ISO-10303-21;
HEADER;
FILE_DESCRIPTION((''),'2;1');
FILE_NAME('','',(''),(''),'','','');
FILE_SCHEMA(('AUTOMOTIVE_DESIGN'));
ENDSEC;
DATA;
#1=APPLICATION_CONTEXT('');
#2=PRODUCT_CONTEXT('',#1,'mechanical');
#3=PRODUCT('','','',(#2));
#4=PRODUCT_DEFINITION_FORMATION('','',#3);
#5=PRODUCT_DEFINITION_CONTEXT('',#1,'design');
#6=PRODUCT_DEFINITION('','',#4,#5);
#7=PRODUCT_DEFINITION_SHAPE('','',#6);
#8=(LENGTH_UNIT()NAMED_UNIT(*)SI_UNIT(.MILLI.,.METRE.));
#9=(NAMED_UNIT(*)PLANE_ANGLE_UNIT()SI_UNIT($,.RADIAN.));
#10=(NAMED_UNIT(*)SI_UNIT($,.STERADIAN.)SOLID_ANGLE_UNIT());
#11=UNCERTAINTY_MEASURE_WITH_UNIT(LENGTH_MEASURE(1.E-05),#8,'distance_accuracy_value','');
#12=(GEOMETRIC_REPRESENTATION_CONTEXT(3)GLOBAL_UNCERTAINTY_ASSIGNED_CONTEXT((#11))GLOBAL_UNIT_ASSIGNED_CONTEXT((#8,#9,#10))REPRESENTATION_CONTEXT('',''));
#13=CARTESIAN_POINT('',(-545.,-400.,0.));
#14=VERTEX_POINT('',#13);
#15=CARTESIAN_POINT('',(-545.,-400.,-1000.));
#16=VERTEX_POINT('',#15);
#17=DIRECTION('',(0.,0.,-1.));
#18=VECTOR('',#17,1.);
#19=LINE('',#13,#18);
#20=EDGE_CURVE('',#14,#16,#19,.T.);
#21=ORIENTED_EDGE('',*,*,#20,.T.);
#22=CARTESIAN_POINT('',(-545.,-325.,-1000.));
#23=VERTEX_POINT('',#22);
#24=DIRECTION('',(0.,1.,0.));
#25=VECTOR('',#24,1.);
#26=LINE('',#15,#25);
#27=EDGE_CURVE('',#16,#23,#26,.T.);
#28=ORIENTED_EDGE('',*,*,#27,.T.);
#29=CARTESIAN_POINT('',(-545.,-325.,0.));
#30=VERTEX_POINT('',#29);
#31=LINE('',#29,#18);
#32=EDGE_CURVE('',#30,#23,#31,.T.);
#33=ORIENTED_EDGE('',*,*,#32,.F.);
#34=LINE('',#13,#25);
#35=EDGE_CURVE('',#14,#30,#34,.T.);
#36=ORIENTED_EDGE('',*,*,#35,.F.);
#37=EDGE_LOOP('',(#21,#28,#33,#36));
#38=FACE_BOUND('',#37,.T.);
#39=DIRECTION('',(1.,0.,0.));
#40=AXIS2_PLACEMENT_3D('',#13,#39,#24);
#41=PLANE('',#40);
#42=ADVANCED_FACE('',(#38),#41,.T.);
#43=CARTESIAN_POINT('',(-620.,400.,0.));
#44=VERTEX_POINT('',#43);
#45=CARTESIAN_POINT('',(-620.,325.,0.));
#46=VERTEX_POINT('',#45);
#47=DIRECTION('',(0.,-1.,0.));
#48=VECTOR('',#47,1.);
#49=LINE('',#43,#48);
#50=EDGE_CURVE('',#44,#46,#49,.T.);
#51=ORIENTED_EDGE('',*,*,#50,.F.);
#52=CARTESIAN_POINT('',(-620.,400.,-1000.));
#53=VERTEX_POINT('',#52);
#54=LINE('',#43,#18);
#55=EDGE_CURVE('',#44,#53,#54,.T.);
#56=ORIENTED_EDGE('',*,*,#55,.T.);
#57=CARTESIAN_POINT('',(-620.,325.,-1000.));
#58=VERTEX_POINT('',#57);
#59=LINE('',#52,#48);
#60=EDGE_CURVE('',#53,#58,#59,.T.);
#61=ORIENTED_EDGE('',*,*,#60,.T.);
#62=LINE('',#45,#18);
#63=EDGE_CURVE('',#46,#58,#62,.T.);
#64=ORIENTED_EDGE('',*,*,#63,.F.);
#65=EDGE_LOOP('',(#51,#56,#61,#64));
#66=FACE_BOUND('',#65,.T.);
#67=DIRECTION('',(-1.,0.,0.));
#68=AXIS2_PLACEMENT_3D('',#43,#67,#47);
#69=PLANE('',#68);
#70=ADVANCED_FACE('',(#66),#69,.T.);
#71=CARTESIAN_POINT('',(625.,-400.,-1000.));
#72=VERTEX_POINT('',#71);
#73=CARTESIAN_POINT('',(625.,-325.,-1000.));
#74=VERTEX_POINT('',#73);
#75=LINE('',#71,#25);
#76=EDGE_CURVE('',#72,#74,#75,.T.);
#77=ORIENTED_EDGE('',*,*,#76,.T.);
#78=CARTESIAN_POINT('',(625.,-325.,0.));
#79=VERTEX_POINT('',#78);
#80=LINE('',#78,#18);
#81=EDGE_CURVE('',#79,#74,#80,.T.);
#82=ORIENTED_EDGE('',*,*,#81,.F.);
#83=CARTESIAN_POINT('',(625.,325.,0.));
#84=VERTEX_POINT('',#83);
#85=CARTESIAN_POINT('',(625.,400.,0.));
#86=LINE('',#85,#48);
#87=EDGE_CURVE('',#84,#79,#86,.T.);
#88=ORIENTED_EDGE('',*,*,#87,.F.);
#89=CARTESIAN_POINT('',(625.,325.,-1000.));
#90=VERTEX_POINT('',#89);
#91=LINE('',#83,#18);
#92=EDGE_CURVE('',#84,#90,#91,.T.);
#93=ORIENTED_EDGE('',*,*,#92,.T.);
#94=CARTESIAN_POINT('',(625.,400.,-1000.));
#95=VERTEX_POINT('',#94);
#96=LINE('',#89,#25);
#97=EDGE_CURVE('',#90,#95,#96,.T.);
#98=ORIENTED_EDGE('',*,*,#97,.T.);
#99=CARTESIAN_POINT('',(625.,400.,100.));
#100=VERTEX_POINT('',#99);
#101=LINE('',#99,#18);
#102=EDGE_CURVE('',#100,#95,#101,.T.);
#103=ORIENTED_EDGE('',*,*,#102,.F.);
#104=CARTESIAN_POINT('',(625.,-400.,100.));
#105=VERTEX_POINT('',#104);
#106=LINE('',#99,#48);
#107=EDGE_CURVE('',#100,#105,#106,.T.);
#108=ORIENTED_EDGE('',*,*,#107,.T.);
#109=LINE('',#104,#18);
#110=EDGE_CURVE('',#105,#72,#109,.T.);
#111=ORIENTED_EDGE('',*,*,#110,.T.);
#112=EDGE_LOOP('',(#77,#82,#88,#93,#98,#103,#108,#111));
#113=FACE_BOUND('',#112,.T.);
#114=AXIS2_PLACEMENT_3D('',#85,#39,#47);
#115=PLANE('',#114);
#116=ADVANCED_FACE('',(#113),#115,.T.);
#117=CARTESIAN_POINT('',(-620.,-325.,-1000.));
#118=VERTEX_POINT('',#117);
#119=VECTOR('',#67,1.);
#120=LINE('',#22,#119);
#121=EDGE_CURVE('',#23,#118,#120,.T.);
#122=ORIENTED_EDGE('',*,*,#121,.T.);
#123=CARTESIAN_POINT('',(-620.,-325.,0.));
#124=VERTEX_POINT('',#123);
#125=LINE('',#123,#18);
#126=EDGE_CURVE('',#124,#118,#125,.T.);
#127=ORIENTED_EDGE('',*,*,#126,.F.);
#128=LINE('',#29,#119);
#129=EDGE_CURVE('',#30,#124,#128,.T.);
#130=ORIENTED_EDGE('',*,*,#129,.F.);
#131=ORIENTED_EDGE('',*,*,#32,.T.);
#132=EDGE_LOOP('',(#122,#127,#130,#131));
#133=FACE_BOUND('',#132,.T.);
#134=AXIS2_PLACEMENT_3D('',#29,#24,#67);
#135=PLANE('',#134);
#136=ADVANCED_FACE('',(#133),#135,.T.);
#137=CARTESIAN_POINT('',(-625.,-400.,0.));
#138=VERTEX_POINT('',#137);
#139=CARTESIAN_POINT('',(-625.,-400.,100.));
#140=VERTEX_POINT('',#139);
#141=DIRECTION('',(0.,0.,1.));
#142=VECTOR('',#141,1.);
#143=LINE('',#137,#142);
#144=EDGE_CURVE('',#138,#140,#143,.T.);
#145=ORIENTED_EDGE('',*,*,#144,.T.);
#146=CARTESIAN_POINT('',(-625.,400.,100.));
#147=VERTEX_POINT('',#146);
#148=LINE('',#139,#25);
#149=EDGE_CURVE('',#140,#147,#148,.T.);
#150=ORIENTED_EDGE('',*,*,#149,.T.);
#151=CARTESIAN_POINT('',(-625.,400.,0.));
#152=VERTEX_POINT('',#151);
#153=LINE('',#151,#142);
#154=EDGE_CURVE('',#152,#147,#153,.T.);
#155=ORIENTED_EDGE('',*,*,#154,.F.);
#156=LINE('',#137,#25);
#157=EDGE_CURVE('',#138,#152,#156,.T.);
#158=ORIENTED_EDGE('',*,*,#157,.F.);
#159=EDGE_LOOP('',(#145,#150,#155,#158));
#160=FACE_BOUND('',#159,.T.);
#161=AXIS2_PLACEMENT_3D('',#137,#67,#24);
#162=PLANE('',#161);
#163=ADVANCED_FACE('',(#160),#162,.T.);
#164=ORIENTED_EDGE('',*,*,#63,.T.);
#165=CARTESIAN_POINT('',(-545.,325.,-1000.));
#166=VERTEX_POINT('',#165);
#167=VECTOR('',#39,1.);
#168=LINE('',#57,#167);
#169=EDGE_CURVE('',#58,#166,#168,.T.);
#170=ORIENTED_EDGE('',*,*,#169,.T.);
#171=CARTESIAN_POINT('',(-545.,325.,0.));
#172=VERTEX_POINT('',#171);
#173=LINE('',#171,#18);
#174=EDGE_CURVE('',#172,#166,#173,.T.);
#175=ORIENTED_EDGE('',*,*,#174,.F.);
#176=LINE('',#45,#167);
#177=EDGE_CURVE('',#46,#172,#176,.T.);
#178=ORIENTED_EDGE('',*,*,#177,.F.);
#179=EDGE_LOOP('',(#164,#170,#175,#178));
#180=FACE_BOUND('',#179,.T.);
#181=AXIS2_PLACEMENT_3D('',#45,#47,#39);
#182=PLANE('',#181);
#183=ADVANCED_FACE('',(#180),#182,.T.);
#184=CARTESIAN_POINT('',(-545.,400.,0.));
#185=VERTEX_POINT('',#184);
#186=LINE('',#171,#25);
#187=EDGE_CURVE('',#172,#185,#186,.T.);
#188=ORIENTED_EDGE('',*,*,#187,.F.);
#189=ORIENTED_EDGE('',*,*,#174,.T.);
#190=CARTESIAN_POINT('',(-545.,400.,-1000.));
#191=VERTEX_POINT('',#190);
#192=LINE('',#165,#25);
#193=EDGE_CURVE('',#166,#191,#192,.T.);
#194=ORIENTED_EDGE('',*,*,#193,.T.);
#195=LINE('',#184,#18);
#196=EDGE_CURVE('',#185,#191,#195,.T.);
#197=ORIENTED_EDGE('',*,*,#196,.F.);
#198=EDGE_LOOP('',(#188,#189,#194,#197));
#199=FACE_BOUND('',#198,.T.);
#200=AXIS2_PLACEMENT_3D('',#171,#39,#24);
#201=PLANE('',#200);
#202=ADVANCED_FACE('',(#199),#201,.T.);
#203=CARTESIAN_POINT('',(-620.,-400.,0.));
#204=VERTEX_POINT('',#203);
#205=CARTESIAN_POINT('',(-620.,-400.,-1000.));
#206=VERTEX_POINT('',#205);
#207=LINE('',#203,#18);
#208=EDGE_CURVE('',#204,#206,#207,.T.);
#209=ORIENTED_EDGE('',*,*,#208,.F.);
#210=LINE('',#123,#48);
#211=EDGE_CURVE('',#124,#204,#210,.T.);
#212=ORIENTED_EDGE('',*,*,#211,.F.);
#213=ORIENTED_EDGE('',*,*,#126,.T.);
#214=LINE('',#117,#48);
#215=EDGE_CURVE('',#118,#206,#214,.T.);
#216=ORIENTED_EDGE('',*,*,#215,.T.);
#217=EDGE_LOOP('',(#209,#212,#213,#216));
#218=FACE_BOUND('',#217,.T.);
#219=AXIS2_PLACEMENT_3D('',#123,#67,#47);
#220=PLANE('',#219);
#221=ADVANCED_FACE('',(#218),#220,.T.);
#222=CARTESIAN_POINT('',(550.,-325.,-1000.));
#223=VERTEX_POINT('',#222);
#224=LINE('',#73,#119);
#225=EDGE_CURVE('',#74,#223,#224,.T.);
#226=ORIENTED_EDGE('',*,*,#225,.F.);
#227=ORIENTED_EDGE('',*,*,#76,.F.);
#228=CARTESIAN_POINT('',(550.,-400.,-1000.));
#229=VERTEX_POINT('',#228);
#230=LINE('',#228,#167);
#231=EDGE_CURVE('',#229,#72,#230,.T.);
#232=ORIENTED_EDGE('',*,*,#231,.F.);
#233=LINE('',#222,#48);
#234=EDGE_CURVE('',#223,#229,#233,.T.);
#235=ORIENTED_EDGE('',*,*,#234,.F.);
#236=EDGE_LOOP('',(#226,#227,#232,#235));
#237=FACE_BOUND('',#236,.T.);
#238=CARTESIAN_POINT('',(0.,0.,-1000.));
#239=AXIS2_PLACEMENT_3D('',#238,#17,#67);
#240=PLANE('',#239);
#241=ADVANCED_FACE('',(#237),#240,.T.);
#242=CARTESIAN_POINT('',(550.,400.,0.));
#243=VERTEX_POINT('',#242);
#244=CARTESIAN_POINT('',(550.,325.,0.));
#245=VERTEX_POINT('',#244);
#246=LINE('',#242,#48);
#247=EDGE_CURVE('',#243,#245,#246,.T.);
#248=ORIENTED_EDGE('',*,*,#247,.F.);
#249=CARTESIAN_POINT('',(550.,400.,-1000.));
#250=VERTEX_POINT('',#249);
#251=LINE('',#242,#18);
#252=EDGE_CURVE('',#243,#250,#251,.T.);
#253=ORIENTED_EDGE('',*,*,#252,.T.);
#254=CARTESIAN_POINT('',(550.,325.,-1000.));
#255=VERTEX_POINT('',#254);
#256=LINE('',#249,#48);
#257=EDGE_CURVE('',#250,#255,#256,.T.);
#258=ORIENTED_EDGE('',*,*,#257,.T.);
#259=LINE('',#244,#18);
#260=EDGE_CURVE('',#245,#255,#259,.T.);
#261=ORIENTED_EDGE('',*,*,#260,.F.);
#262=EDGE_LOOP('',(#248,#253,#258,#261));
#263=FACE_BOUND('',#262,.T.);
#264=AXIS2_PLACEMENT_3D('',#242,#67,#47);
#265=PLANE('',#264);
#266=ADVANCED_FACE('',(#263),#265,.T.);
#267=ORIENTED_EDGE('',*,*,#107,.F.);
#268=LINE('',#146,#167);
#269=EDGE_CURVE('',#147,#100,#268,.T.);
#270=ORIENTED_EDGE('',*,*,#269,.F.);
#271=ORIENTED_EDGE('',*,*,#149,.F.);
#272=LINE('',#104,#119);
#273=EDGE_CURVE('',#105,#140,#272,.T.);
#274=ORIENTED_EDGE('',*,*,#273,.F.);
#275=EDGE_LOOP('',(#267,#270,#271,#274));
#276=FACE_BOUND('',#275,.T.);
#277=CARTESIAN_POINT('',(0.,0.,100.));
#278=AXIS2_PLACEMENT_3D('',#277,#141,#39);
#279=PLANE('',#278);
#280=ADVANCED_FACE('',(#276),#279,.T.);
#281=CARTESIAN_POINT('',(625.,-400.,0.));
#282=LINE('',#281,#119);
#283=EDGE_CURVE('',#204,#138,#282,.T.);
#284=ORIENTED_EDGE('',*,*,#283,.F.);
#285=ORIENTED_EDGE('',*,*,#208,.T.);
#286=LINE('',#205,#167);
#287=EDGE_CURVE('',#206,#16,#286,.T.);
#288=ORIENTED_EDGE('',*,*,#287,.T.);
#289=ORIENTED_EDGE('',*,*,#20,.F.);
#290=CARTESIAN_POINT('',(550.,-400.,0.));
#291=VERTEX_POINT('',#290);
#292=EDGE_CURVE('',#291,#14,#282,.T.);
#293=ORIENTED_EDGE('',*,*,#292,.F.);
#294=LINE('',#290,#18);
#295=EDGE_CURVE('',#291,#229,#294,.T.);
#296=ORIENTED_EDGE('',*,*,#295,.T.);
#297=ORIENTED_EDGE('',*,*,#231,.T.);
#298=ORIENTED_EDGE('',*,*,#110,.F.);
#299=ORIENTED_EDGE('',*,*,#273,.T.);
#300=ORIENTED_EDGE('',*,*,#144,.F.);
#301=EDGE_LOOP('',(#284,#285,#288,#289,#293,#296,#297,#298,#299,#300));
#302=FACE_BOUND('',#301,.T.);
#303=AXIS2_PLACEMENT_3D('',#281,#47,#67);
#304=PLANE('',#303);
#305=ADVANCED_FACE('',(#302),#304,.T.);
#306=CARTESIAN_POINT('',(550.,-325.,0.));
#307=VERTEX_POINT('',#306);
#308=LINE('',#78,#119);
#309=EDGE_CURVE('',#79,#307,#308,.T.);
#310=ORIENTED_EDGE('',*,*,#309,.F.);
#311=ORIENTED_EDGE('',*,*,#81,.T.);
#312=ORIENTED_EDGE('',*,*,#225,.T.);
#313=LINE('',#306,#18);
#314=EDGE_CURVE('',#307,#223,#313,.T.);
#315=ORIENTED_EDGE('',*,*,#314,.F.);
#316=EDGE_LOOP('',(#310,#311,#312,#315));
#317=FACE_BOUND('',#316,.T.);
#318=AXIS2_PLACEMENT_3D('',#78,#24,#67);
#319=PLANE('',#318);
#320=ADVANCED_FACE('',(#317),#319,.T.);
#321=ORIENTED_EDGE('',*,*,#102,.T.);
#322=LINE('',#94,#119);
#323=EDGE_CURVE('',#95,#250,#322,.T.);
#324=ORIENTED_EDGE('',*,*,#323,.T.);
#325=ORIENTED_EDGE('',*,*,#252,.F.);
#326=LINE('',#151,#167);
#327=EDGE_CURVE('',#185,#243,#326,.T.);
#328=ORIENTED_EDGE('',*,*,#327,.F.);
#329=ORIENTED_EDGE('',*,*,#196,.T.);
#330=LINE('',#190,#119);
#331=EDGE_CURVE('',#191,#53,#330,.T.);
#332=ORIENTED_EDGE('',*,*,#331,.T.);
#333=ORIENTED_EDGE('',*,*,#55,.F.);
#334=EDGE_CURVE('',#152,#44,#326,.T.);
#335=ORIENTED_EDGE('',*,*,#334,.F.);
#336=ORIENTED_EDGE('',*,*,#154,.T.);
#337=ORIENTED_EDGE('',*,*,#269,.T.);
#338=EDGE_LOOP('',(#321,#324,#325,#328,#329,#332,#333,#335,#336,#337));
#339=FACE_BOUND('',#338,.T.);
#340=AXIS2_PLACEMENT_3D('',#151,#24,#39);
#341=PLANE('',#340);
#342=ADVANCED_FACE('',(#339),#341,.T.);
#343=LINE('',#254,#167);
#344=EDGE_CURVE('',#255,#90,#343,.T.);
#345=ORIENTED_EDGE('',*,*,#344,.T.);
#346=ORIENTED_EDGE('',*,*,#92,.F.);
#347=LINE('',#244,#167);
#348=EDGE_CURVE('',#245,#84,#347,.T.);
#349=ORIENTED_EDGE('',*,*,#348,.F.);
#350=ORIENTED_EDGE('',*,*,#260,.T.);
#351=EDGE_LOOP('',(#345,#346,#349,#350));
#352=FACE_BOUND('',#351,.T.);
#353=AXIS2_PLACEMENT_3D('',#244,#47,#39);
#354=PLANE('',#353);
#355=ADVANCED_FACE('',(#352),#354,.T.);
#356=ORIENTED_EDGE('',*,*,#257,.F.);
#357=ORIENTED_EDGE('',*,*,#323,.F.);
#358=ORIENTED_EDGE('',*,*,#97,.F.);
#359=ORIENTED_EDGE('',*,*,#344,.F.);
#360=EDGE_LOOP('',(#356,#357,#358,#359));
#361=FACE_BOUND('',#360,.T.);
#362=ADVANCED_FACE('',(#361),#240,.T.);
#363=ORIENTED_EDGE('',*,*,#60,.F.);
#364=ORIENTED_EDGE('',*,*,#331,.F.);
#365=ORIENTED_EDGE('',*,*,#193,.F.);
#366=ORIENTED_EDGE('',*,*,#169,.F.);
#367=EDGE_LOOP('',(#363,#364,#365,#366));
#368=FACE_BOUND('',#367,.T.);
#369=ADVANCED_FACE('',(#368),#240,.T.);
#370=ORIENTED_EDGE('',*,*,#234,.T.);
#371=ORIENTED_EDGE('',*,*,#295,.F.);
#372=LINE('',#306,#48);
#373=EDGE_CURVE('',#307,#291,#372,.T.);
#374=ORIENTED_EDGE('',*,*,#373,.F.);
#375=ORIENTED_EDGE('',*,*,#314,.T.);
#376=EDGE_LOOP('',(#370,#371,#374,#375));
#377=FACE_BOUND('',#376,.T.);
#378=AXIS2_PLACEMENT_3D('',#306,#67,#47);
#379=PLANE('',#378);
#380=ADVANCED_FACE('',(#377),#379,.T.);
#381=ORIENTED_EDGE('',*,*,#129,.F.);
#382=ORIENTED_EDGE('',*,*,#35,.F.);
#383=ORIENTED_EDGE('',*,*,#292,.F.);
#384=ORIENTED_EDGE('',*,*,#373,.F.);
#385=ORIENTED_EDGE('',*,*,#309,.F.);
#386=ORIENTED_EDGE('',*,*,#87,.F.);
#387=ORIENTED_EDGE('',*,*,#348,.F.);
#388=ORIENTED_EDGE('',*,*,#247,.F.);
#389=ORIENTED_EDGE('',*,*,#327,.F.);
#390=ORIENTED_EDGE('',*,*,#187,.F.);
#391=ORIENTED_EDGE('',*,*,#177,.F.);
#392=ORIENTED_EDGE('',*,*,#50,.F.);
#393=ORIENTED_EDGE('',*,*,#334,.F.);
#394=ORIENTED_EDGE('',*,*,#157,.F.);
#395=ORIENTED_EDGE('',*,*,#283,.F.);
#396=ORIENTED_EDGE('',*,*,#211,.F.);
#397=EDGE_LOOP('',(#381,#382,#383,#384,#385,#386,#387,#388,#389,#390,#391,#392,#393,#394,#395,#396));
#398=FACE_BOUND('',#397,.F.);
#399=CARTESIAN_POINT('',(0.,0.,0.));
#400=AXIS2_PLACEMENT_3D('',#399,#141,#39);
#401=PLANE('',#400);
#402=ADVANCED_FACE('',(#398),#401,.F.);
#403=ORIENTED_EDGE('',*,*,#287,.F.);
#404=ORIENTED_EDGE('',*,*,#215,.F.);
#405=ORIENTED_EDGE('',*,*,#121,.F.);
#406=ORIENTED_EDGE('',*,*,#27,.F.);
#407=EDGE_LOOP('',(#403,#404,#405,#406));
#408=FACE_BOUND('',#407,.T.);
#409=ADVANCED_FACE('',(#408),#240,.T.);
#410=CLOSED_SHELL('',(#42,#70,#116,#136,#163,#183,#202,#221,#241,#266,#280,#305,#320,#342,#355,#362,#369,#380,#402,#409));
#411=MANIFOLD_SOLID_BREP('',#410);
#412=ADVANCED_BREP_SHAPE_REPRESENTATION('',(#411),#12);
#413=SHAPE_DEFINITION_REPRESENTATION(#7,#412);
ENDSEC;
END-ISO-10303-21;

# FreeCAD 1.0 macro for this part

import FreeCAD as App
import Part
import Sketcher
from FreeCAD import Vector
Q = App.Units.Quantity

doc = App.newDocument("Part")
params = doc.addObject("Spreadsheet::Sheet", "Params")
for row, (alias, value) in enumerate([
    ("sketch1_width", "1250 mm"),
    ("sketch1_height", "800 mm"),
    ("pad1_length", "100 mm"),
    ("sketch2_width", "75 mm"),
    ("pad2_length", "1000 mm"),
], start=1):
    params.set(f"A{row}", alias)
    params.set(f"B{row}", "=" + value)
    params.setAlias(f"B{row}", alias)

body = doc.addObject("PartDesign::Body", "Body")

# Sketch on XY plane
sketch1 = body.newObject("Sketcher::SketchObject", "Sketch")
sketch1.AttachmentSupport = (doc.getObject("XY_Plane"), [""])
sketch1.MapMode = "FlatFace"
sketch1.addGeometry(Part.LineSegment(Vector(625, 400, 0), Vector(-625, 400, 0)), False)
sketch1.addGeometry(Part.LineSegment(Vector(-625, 400, 0), Vector(-625, -400, 0)), False)
sketch1.addGeometry(Part.LineSegment(Vector(-625, -400, 0), Vector(625, -400, 0)), False)
sketch1.addGeometry(Part.LineSegment(Vector(625, -400, 0), Vector(625, 400, 0)), False)
sketch1.addConstraint(Sketcher.Constraint("Coincident", 0, 2, 1, 1))
sketch1.addConstraint(Sketcher.Constraint("Coincident", 1, 2, 2, 1))
sketch1.addConstraint(Sketcher.Constraint("Coincident", 2, 2, 3, 1))
sketch1.addConstraint(Sketcher.Constraint("Coincident", 3, 2, 0, 1))
sketch1.addConstraint(Sketcher.Constraint("Horizontal", 0))
sketch1.addConstraint(Sketcher.Constraint("Vertical", 1))
sketch1.addConstraint(Sketcher.Constraint("Horizontal", 2))
sketch1.addConstraint(Sketcher.Constraint("Vertical", 3))
sketch1.addConstraint(Sketcher.Constraint("Symmetric", 0, 2, 2, 2, -1, 1))
sketch1.addConstraint(Sketcher.Constraint("DistanceX", 0, 2, 0, 1, Q("1250 mm")))
sketch1.addConstraint(Sketcher.Constraint("DistanceY", 1, 2, 1, 1, Q("800 mm")))
sketch1.setExpression("Constraints[9]", "Params.sketch1_width")
sketch1.setExpression("Constraints[10]", "Params.sketch1_height")
pad1 = body.newObject("PartDesign::Pad", "Pad")
pad1.Profile = sketch1
pad1.setExpression("Length", "Params.pad1_length")

# Sketch on XY plane
sketch2 = body.newObject("Sketcher::SketchObject", "Sketch001")
sketch2.AttachmentSupport = (doc.getObject("XY_Plane"), [""])
sketch2.MapMode = "FlatFace"
sketch2.addGeometry(Part.LineSegment(Vector(550, 400, 0), Vector(625, 400, 0)), False)
sketch2.addGeometry(Part.LineSegment(Vector(625, 400, 0), Vector(625, 325, 0)), False)
sketch2.addGeometry(Part.LineSegment(Vector(625, 325, 0), Vector(550, 325, 0)), False)
sketch2.addGeometry(Part.LineSegment(Vector(550, 325, 0), Vector(550, 400, 0)), False)
sketch2.addGeometry(Part.LineSegment(Vector(-620, 400, 0), Vector(-545, 400, 0)), False)
sketch2.addGeometry(Part.LineSegment(Vector(-545, 400, 0), Vector(-545, 325, 0)), False)
sketch2.addGeometry(Part.LineSegment(Vector(-545, 325, 0), Vector(-620, 325, 0)), False)
sketch2.addGeometry(Part.LineSegment(Vector(-620, 325, 0), Vector(-620, 400, 0)), False)
sketch2.addGeometry(Part.LineSegment(Vector(550, -325, 0), Vector(625, -325, 0)), False)
sketch2.addGeometry(Part.LineSegment(Vector(625, -325, 0), Vector(625, -400, 0)), False)
sketch2.addGeometry(Part.LineSegment(Vector(625, -400, 0), Vector(550, -400, 0)), False)
sketch2.addGeometry(Part.LineSegment(Vector(550, -400, 0), Vector(550, -325, 0)), False)
sketch2.addGeometry(Part.LineSegment(Vector(-620, -325, 0), Vector(-545, -325, 0)), False)
sketch2.addGeometry(Part.LineSegment(Vector(-545, -325, 0), Vector(-545, -400, 0)), False)
sketch2.addGeometry(Part.LineSegment(Vector(-545, -400, 0), Vector(-620, -400, 0)), False)
sketch2.addGeometry(Part.LineSegment(Vector(-620, -400, 0), Vector(-620, -325, 0)), False)
sketch2.addConstraint(Sketcher.Constraint("Coincident", 0, 2, 1, 1))
sketch2.addConstraint(Sketcher.Constraint("Coincident", 1, 2, 2, 1))
sketch2.addConstraint(Sketcher.Constraint("Coincident", 2, 2, 3, 1))
sketch2.addConstraint(Sketcher.Constraint("Coincident", 3, 2, 0, 1))
sketch2.addConstraint(Sketcher.Constraint("Coincident", 4, 2, 5, 1))
sketch2.addConstraint(Sketcher.Constraint("Coincident", 5, 2, 6, 1))
sketch2.addConstraint(Sketcher.Constraint("Coincident", 6, 2, 7, 1))
sketch2.addConstraint(Sketcher.Constraint("Coincident", 7, 2, 4, 1))
sketch2.addConstraint(Sketcher.Constraint("Coincident", 8, 2, 9, 1))
sketch2.addConstraint(Sketcher.Constraint("Coincident", 9, 2, 10, 1))
sketch2.addConstraint(Sketcher.Constraint("Coincident", 10, 2, 11, 1))
sketch2.addConstraint(Sketcher.Constraint("Coincident", 11, 2, 8, 1))
sketch2.addConstraint(Sketcher.Constraint("Coincident", 12, 2, 13, 1))
sketch2.addConstraint(Sketcher.Constraint("Coincident", 13, 2, 14, 1))
sketch2.addConstraint(Sketcher.Constraint("Coincident", 14, 2, 15, 1))
sketch2.addConstraint(Sketcher.Constraint("Coincident", 15, 2, 12, 1))
sketch2.addConstraint(Sketcher.Constraint("Horizontal", 0))
sketch2.addConstraint(Sketcher.Constraint("Vertical", 1))
sketch2.addConstraint(Sketcher.Constraint("Horizontal", 2))
sketch2.addConstraint(Sketcher.Constraint("Vertical", 3))
sketch2.addConstraint(Sketcher.Constraint("Horizontal", 4))
sketch2.addConstraint(Sketcher.Constraint("Vertical", 5))
sketch2.addConstraint(Sketcher.Constraint("Horizontal", 6))
sketch2.addConstraint(Sketcher.Constraint("Vertical", 7))
sketch2.addConstraint(Sketcher.Constraint("Horizontal", 8))
sketch2.addConstraint(Sketcher.Constraint("Vertical", 9))
sketch2.addConstraint(Sketcher.Constraint("Horizontal", 10))
sketch2.addConstraint(Sketcher.Constraint("Vertical", 11))
sketch2.addConstraint(Sketcher.Constraint("Horizontal", 12))
sketch2.addConstraint(Sketcher.Constraint("Vertical", 13))
sketch2.addConstraint(Sketcher.Constraint("Horizontal", 14))
sketch2.addConstraint(Sketcher.Constraint("Vertical", 15))
sketch2.addConstraint(Sketcher.Constraint("Symmetric", 1, 2, 8, 2, -1))
sketch2.addConstraint(Sketcher.Constraint("Symmetric", 3, 2, 10, 2, -1))
sketch2.addConstraint(Sketcher.Constraint("Symmetric", 5, 2, 12, 2, -1))
sketch2.addConstraint(Sketcher.Constraint("Symmetric", 7, 2, 14, 2, -1))
sketch2.addConstraint(Sketcher.Constraint("Horizontal", 3, 2, 4, 2))
sketch2.addConstraint(Sketcher.Constraint("Horizontal", 2, 2, 5, 2))
sketch2.addConstraint(Sketcher.Constraint("Equal", 2, 4))
sketch2.addConstraint(Sketcher.Constraint("Equal", 14, 1))
sketch2.addConstraint(Sketcher.Constraint("DistanceX", 0, 1, 0, 2, Q("75 mm")))
sketch2.addConstraint(Sketcher.Constraint("DistanceX", 4, 2, 0, 2, Q("1170 mm")))
sketch2.addConstraint(Sketcher.Constraint("DistanceY", 8, 2, 0, 2, Q("725 mm")))
sketch2.addConstraint(Sketcher.Constraint("DistanceX", -1, 1, 0, 2, Q("625 mm")))
sketch2.setExpression("Constraints[40]", "Params.sketch2_width")
pad2 = body.newObject("PartDesign::Pad", "Pad001")
pad2.Profile = sketch2
pad2.setExpression("Length", "Params.pad2_length")
pad2.Reversed = True

doc.recompute()
